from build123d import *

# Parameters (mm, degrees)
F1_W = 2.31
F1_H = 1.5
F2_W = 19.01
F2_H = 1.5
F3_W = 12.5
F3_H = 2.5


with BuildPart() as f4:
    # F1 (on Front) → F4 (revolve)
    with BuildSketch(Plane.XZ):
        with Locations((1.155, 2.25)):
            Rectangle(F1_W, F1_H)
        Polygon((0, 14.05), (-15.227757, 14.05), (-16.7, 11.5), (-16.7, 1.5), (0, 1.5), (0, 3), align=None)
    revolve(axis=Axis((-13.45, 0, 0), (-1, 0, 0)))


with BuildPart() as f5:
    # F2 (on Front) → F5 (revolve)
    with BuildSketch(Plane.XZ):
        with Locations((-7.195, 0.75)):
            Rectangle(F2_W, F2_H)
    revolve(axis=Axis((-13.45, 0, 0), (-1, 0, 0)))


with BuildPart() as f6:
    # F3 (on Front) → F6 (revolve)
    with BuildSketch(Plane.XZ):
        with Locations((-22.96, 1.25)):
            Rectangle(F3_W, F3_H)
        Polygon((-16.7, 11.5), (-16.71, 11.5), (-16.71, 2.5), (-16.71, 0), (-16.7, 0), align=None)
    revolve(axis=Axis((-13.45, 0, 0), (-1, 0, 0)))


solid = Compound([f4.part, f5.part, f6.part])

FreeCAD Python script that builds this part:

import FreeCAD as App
import Part
import Sketcher

V = App.Vector
Q = App.Units.Quantity


def add_polygon(sketch, points):
    """Adds a closed chain of lines whose ends are joined by coincident constraints."""
    first, n = sketch.GeometryCount, len(points)
    for a, b in zip(points, points[1:] + points[:1]):
        sketch.addGeometry(Part.LineSegment(App.Vector(*a, 0), App.Vector(*b, 0)), False)
    for i in range(n):
        sketch.addConstraint(Sketcher.Constraint("Coincident", first + i, 2, first + (i + 1) % n, 1))

doc = App.newDocument("Part")
body = doc.addObject("PartDesign::Body", "Body")

# Sketch on XZ plane
sketch1 = body.newObject("Sketcher::SketchObject", "Sketch")
sketch1.AttachmentSupport = (doc.getObject("XZ_Plane"), [""])
sketch1.MapMode = "FlatFace"
add_polygon(sketch1, [(2.31, 1.5), (2.31, 3), (0, 3), (0, 14.05), (-15.227757, 14.05), (-16.7, 11.5), (-16.7, 1.5)])  # lines 0-6
sketch1.addConstraint([
    Sketcher.Constraint("Vertical", 0),
    Sketcher.Constraint("Horizontal", 1),
    Sketcher.Constraint("Vertical", 2),
    Sketcher.Constraint("Horizontal", 3),
    Sketcher.Constraint("Vertical", 5),
    Sketcher.Constraint("Horizontal", 6),
    Sketcher.Constraint("PointOnObject", 1, 2, -2),
    Sketcher.Constraint("DistanceY", 5, 2, 5, 1, Q("10 mm")),
    Sketcher.Constraint("Angle", 4, Q("-119.999997 deg")),
    Sketcher.Constraint("DistanceY", 0, 1, 0, 2, Q("1.5 mm")),
    Sketcher.Constraint("DistanceY", -1, 1, 0, 2, Q("3 mm")),
    Sketcher.Constraint("DistanceX", 1, 2, 1, 1, Q("2.31 mm")),
    Sketcher.Constraint("DistanceX", 6, 1, 6, 2, Q("19.01 mm")),
    Sketcher.Constraint("DistanceY", 2, 1, 2, 2, Q("11.05 mm")),
])
revolution = body.newObject("PartDesign::Revolution", "Revolution")
revolution.Profile = sketch1
revolution.ReferenceAxis = (sketch1, ["H_Axis"])
revolution.Angle = 360
body2 = doc.addObject("PartDesign::Body", "Body001")

# Sketch on XZ plane
sketch2 = body2.newObject("Sketcher::SketchObject", "Sketch001")
sketch2.AttachmentSupport = (doc.getObject("XZ_Plane001"), [""])
sketch2.MapMode = "FlatFace"
add_polygon(sketch2, [(-16.7, 1.5), (-16.7, 0), (2.31, 0), (2.31, 1.5)])  # lines 0-3
sketch2.addConstraint([
    Sketcher.Constraint("Vertical", 0),
    Sketcher.Constraint("Horizontal", 1),
    Sketcher.Constraint("Vertical", 2),
    Sketcher.Constraint("Horizontal", 3),
    Sketcher.Constraint("PointOnObject", 0, 2, -1),
    Sketcher.Constraint("DistanceY", 0, 2, 0, 1, Q("1.5 mm")),
    Sketcher.Constraint("DistanceX", 1, 1, 1, 2, Q("19.01 mm")),
    Sketcher.Constraint("DistanceX", 0, 2, -1, 1, Q("16.7 mm")),
])
revolution2 = body2.newObject("PartDesign::Revolution", "Revolution001")
revolution2.Profile = sketch2
revolution2.ReferenceAxis = (sketch2, ["H_Axis"])
revolution2.Angle = 360
body3 = doc.addObject("PartDesign::Body", "Body002")

# Sketch on XZ plane
sketch3 = body3.newObject("Sketcher::SketchObject", "Sketch002")
sketch3.AttachmentSupport = (doc.getObject("XZ_Plane002"), [""])
sketch3.MapMode = "FlatFace"
add_polygon(sketch3, [(-29.21, 2.5), (-29.21, 0), (-16.7, 0), (-16.7, 11.5), (-16.71, 11.5), (-16.71, 2.5)])  # lines 0-5
sketch3.addConstraint([
    Sketcher.Constraint("Vertical", 0),
    Sketcher.Constraint("Horizontal", 1),
    Sketcher.Constraint("Vertical", 2),
    Sketcher.Constraint("Horizontal", 3),
    Sketcher.Constraint("Vertical", 4),
    Sketcher.Constraint("Horizontal", 5),
    Sketcher.Constraint("PointOnObject", 0, 2, -1),
    Sketcher.Constraint("DistanceY", 4, 2, 4, 1, Q("9 mm")),
    Sketcher.Constraint("DistanceX", 5, 2, 5, 1, Q("12.5 mm")),
    Sketcher.Constraint("DistanceY", 0, 2, 0, 1, Q("2.5 mm")),
    Sketcher.Constraint("DistanceX", 1, 1, 1, 2, Q("12.51 mm")),
    Sketcher.Constraint("DistanceX", 1, 2, -1, 1, Q("16.7 mm")),
])
revolution3 = body3.newObject("PartDesign::Revolution", "Revolution002")
revolution3.Profile = sketch3
revolution3.ReferenceAxis = (sketch3, ["H_Axis"])
revolution3.Angle = 360

doc.recompute()
